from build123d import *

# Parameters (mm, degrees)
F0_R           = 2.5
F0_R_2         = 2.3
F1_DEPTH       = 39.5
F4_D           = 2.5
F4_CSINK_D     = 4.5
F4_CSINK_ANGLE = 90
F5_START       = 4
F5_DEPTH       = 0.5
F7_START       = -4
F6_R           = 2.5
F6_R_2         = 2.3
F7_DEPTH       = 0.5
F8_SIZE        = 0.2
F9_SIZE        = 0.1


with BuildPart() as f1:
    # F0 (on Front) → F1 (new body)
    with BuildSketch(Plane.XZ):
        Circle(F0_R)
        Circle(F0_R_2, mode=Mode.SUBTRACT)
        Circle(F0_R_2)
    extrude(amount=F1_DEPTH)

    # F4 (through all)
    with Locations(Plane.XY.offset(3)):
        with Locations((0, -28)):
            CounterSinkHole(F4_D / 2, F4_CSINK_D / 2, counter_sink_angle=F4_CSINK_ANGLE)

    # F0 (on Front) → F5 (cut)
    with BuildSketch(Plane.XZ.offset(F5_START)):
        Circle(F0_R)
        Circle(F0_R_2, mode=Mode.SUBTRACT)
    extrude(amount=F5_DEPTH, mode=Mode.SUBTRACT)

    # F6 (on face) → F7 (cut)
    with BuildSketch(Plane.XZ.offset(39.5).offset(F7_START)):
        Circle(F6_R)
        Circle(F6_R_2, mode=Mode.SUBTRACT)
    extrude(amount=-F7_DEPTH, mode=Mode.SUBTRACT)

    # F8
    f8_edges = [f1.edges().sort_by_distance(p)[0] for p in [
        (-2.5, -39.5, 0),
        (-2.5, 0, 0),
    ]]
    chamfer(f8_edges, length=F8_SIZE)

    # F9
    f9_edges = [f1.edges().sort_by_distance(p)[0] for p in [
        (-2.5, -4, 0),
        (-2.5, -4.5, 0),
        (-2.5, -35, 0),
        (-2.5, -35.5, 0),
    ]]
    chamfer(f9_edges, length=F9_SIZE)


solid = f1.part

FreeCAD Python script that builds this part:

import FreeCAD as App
import Part
import Sketcher
from FreeCAD import Vector


def edges_at(feature, points):
    """Names of the edges that pass closest to the given points."""
    edges = feature.Shape.Edges
    near = lambda p: min(range(len(edges)), key=lambda i: edges[i].distToShape(Part.Vertex(*p))[0])
    return sorted({f"Edge{near(p) + 1}" for p in points})

doc = App.newDocument("Part")
body = doc.addObject("PartDesign::Body", "Body")

# Sketch on XZ plane
sketch1 = body.newObject("Sketcher::SketchObject", "Sketch")
sketch1.AttachmentSupport = (doc.getObject("XZ_Plane"), [""])
sketch1.MapMode = "FlatFace"
sketch1.addGeometry(Part.Circle(Vector(0, 0, 0), Vector(0, 0, 1), 2.5), False)
sketch1.addConstraint([
    Sketcher.Constraint("Coincident", 0, 3, -1, 1),
    Sketcher.Constraint("Diameter", 0, 5.0),
])
pad1 = body.newObject("PartDesign::Pad", "Pad")
pad1.Profile = sketch1
pad1.Length = 39.5

# Sketch on XY plane
sketch2 = body.newObject("Sketcher::SketchObject", "Sketch001")
sketch2.AttachmentSupport = (doc.getObject("XY_Plane"), [""])
sketch2.MapMode = "FlatFace"
sketch2.AttachmentOffset = App.Placement(Vector(0, 0, 3), App.Rotation())
sketch2.addGeometry(Part.Circle(Vector(0, -28, 0), Vector(0, 0, 1), 1.2), False)
sketch2.addConstraint([
    Sketcher.Constraint("PointOnObject", 0, 3, -2),
    Sketcher.Constraint("Diameter", 0, 2.5),
    Sketcher.Constraint("DistanceY", 0, 3, -1, 1, 28.0),
])
doc.recompute()
hole = body.newObject("PartDesign::Hole", "Hole")
hole.Profile = sketch2
hole.ThreadType = "None"
hole.Diameter = 2.5
hole.DepthType = "ThroughAll"
hole.HoleCutType = "Countersink"
hole.HoleCutDiameter = 4.5
hole.HoleCutCountersinkAngle = 90

# Sketch on XZ plane
sketch3 = body.newObject("Sketcher::SketchObject", "Sketch002")
sketch3.AttachmentSupport = (doc.getObject("XZ_Plane"), [""])
sketch3.MapMode = "FlatFace"
sketch3.AttachmentOffset = App.Placement(Vector(0, 0, 4), App.Rotation())
sketch3.addGeometry([
    Part.Circle(Vector(0, 0, 0), Vector(0, 0, 1), 2.5),
    Part.Circle(Vector(0, 0, 0), Vector(0, 0, 1), 2.3),
], False)
sketch3.addConstraint([
    Sketcher.Constraint("Coincident", 0, 3, -1, 1),
    Sketcher.Constraint("Coincident", 1, 3, -1, 1),
    Sketcher.Constraint("Diameter", 0, 5.0),
    Sketcher.Constraint("Diameter", 1, 4.6),
])
pocket1 = body.newObject("PartDesign::Pocket", "Pocket")
pocket1.Profile = sketch3
pocket1.Length = 0.5
pocket1.Reversed = True

# Sketch on XZ plane
sketch4 = body.newObject("Sketcher::SketchObject", "Sketch003")
sketch4.AttachmentSupport = (doc.getObject("XZ_Plane"), [""])
sketch4.MapMode = "FlatFace"
sketch4.AttachmentOffset = App.Placement(Vector(0, 0, 35.5), App.Rotation())
sketch4.addGeometry([
    Part.Circle(Vector(0, 0, 0), Vector(0, 0, 1), 2.5),
    Part.Circle(Vector(0, 0, 0), Vector(0, 0, 1), 2.3),
], False)
sketch4.addConstraint([
    Sketcher.Constraint("Coincident", 0, 3, -1, 1),
    Sketcher.Constraint("Coincident", 1, 3, -1, 1),
    Sketcher.Constraint("Diameter", 0, 5.0),
    Sketcher.Constraint("Diameter", 1, 4.6),
])
pocket2 = body.newObject("PartDesign::Pocket", "Pocket001")
pocket2.Profile = sketch4
pocket2.Length = 0.5
doc.recompute()

chamfer = body.newObject("PartDesign::Chamfer", "Chamfer")
chamfer.Base = (pocket2, edges_at(pocket2, [(-2.5, -39.5, 0), (-2.5, 0, 0)]))
chamfer.Size = 0.2
doc.recompute()

chamfer2 = body.newObject("PartDesign::Chamfer", "Chamfer001")
chamfer2.Base = (chamfer, edges_at(chamfer, [
    (-2.5, -4, 0),
    (-2.5, -4.5, 0),
    (-2.5, -35, 0),
    (-2.5, -35.5, 0),
]))
chamfer2.Size = 0.1

doc.recompute()
